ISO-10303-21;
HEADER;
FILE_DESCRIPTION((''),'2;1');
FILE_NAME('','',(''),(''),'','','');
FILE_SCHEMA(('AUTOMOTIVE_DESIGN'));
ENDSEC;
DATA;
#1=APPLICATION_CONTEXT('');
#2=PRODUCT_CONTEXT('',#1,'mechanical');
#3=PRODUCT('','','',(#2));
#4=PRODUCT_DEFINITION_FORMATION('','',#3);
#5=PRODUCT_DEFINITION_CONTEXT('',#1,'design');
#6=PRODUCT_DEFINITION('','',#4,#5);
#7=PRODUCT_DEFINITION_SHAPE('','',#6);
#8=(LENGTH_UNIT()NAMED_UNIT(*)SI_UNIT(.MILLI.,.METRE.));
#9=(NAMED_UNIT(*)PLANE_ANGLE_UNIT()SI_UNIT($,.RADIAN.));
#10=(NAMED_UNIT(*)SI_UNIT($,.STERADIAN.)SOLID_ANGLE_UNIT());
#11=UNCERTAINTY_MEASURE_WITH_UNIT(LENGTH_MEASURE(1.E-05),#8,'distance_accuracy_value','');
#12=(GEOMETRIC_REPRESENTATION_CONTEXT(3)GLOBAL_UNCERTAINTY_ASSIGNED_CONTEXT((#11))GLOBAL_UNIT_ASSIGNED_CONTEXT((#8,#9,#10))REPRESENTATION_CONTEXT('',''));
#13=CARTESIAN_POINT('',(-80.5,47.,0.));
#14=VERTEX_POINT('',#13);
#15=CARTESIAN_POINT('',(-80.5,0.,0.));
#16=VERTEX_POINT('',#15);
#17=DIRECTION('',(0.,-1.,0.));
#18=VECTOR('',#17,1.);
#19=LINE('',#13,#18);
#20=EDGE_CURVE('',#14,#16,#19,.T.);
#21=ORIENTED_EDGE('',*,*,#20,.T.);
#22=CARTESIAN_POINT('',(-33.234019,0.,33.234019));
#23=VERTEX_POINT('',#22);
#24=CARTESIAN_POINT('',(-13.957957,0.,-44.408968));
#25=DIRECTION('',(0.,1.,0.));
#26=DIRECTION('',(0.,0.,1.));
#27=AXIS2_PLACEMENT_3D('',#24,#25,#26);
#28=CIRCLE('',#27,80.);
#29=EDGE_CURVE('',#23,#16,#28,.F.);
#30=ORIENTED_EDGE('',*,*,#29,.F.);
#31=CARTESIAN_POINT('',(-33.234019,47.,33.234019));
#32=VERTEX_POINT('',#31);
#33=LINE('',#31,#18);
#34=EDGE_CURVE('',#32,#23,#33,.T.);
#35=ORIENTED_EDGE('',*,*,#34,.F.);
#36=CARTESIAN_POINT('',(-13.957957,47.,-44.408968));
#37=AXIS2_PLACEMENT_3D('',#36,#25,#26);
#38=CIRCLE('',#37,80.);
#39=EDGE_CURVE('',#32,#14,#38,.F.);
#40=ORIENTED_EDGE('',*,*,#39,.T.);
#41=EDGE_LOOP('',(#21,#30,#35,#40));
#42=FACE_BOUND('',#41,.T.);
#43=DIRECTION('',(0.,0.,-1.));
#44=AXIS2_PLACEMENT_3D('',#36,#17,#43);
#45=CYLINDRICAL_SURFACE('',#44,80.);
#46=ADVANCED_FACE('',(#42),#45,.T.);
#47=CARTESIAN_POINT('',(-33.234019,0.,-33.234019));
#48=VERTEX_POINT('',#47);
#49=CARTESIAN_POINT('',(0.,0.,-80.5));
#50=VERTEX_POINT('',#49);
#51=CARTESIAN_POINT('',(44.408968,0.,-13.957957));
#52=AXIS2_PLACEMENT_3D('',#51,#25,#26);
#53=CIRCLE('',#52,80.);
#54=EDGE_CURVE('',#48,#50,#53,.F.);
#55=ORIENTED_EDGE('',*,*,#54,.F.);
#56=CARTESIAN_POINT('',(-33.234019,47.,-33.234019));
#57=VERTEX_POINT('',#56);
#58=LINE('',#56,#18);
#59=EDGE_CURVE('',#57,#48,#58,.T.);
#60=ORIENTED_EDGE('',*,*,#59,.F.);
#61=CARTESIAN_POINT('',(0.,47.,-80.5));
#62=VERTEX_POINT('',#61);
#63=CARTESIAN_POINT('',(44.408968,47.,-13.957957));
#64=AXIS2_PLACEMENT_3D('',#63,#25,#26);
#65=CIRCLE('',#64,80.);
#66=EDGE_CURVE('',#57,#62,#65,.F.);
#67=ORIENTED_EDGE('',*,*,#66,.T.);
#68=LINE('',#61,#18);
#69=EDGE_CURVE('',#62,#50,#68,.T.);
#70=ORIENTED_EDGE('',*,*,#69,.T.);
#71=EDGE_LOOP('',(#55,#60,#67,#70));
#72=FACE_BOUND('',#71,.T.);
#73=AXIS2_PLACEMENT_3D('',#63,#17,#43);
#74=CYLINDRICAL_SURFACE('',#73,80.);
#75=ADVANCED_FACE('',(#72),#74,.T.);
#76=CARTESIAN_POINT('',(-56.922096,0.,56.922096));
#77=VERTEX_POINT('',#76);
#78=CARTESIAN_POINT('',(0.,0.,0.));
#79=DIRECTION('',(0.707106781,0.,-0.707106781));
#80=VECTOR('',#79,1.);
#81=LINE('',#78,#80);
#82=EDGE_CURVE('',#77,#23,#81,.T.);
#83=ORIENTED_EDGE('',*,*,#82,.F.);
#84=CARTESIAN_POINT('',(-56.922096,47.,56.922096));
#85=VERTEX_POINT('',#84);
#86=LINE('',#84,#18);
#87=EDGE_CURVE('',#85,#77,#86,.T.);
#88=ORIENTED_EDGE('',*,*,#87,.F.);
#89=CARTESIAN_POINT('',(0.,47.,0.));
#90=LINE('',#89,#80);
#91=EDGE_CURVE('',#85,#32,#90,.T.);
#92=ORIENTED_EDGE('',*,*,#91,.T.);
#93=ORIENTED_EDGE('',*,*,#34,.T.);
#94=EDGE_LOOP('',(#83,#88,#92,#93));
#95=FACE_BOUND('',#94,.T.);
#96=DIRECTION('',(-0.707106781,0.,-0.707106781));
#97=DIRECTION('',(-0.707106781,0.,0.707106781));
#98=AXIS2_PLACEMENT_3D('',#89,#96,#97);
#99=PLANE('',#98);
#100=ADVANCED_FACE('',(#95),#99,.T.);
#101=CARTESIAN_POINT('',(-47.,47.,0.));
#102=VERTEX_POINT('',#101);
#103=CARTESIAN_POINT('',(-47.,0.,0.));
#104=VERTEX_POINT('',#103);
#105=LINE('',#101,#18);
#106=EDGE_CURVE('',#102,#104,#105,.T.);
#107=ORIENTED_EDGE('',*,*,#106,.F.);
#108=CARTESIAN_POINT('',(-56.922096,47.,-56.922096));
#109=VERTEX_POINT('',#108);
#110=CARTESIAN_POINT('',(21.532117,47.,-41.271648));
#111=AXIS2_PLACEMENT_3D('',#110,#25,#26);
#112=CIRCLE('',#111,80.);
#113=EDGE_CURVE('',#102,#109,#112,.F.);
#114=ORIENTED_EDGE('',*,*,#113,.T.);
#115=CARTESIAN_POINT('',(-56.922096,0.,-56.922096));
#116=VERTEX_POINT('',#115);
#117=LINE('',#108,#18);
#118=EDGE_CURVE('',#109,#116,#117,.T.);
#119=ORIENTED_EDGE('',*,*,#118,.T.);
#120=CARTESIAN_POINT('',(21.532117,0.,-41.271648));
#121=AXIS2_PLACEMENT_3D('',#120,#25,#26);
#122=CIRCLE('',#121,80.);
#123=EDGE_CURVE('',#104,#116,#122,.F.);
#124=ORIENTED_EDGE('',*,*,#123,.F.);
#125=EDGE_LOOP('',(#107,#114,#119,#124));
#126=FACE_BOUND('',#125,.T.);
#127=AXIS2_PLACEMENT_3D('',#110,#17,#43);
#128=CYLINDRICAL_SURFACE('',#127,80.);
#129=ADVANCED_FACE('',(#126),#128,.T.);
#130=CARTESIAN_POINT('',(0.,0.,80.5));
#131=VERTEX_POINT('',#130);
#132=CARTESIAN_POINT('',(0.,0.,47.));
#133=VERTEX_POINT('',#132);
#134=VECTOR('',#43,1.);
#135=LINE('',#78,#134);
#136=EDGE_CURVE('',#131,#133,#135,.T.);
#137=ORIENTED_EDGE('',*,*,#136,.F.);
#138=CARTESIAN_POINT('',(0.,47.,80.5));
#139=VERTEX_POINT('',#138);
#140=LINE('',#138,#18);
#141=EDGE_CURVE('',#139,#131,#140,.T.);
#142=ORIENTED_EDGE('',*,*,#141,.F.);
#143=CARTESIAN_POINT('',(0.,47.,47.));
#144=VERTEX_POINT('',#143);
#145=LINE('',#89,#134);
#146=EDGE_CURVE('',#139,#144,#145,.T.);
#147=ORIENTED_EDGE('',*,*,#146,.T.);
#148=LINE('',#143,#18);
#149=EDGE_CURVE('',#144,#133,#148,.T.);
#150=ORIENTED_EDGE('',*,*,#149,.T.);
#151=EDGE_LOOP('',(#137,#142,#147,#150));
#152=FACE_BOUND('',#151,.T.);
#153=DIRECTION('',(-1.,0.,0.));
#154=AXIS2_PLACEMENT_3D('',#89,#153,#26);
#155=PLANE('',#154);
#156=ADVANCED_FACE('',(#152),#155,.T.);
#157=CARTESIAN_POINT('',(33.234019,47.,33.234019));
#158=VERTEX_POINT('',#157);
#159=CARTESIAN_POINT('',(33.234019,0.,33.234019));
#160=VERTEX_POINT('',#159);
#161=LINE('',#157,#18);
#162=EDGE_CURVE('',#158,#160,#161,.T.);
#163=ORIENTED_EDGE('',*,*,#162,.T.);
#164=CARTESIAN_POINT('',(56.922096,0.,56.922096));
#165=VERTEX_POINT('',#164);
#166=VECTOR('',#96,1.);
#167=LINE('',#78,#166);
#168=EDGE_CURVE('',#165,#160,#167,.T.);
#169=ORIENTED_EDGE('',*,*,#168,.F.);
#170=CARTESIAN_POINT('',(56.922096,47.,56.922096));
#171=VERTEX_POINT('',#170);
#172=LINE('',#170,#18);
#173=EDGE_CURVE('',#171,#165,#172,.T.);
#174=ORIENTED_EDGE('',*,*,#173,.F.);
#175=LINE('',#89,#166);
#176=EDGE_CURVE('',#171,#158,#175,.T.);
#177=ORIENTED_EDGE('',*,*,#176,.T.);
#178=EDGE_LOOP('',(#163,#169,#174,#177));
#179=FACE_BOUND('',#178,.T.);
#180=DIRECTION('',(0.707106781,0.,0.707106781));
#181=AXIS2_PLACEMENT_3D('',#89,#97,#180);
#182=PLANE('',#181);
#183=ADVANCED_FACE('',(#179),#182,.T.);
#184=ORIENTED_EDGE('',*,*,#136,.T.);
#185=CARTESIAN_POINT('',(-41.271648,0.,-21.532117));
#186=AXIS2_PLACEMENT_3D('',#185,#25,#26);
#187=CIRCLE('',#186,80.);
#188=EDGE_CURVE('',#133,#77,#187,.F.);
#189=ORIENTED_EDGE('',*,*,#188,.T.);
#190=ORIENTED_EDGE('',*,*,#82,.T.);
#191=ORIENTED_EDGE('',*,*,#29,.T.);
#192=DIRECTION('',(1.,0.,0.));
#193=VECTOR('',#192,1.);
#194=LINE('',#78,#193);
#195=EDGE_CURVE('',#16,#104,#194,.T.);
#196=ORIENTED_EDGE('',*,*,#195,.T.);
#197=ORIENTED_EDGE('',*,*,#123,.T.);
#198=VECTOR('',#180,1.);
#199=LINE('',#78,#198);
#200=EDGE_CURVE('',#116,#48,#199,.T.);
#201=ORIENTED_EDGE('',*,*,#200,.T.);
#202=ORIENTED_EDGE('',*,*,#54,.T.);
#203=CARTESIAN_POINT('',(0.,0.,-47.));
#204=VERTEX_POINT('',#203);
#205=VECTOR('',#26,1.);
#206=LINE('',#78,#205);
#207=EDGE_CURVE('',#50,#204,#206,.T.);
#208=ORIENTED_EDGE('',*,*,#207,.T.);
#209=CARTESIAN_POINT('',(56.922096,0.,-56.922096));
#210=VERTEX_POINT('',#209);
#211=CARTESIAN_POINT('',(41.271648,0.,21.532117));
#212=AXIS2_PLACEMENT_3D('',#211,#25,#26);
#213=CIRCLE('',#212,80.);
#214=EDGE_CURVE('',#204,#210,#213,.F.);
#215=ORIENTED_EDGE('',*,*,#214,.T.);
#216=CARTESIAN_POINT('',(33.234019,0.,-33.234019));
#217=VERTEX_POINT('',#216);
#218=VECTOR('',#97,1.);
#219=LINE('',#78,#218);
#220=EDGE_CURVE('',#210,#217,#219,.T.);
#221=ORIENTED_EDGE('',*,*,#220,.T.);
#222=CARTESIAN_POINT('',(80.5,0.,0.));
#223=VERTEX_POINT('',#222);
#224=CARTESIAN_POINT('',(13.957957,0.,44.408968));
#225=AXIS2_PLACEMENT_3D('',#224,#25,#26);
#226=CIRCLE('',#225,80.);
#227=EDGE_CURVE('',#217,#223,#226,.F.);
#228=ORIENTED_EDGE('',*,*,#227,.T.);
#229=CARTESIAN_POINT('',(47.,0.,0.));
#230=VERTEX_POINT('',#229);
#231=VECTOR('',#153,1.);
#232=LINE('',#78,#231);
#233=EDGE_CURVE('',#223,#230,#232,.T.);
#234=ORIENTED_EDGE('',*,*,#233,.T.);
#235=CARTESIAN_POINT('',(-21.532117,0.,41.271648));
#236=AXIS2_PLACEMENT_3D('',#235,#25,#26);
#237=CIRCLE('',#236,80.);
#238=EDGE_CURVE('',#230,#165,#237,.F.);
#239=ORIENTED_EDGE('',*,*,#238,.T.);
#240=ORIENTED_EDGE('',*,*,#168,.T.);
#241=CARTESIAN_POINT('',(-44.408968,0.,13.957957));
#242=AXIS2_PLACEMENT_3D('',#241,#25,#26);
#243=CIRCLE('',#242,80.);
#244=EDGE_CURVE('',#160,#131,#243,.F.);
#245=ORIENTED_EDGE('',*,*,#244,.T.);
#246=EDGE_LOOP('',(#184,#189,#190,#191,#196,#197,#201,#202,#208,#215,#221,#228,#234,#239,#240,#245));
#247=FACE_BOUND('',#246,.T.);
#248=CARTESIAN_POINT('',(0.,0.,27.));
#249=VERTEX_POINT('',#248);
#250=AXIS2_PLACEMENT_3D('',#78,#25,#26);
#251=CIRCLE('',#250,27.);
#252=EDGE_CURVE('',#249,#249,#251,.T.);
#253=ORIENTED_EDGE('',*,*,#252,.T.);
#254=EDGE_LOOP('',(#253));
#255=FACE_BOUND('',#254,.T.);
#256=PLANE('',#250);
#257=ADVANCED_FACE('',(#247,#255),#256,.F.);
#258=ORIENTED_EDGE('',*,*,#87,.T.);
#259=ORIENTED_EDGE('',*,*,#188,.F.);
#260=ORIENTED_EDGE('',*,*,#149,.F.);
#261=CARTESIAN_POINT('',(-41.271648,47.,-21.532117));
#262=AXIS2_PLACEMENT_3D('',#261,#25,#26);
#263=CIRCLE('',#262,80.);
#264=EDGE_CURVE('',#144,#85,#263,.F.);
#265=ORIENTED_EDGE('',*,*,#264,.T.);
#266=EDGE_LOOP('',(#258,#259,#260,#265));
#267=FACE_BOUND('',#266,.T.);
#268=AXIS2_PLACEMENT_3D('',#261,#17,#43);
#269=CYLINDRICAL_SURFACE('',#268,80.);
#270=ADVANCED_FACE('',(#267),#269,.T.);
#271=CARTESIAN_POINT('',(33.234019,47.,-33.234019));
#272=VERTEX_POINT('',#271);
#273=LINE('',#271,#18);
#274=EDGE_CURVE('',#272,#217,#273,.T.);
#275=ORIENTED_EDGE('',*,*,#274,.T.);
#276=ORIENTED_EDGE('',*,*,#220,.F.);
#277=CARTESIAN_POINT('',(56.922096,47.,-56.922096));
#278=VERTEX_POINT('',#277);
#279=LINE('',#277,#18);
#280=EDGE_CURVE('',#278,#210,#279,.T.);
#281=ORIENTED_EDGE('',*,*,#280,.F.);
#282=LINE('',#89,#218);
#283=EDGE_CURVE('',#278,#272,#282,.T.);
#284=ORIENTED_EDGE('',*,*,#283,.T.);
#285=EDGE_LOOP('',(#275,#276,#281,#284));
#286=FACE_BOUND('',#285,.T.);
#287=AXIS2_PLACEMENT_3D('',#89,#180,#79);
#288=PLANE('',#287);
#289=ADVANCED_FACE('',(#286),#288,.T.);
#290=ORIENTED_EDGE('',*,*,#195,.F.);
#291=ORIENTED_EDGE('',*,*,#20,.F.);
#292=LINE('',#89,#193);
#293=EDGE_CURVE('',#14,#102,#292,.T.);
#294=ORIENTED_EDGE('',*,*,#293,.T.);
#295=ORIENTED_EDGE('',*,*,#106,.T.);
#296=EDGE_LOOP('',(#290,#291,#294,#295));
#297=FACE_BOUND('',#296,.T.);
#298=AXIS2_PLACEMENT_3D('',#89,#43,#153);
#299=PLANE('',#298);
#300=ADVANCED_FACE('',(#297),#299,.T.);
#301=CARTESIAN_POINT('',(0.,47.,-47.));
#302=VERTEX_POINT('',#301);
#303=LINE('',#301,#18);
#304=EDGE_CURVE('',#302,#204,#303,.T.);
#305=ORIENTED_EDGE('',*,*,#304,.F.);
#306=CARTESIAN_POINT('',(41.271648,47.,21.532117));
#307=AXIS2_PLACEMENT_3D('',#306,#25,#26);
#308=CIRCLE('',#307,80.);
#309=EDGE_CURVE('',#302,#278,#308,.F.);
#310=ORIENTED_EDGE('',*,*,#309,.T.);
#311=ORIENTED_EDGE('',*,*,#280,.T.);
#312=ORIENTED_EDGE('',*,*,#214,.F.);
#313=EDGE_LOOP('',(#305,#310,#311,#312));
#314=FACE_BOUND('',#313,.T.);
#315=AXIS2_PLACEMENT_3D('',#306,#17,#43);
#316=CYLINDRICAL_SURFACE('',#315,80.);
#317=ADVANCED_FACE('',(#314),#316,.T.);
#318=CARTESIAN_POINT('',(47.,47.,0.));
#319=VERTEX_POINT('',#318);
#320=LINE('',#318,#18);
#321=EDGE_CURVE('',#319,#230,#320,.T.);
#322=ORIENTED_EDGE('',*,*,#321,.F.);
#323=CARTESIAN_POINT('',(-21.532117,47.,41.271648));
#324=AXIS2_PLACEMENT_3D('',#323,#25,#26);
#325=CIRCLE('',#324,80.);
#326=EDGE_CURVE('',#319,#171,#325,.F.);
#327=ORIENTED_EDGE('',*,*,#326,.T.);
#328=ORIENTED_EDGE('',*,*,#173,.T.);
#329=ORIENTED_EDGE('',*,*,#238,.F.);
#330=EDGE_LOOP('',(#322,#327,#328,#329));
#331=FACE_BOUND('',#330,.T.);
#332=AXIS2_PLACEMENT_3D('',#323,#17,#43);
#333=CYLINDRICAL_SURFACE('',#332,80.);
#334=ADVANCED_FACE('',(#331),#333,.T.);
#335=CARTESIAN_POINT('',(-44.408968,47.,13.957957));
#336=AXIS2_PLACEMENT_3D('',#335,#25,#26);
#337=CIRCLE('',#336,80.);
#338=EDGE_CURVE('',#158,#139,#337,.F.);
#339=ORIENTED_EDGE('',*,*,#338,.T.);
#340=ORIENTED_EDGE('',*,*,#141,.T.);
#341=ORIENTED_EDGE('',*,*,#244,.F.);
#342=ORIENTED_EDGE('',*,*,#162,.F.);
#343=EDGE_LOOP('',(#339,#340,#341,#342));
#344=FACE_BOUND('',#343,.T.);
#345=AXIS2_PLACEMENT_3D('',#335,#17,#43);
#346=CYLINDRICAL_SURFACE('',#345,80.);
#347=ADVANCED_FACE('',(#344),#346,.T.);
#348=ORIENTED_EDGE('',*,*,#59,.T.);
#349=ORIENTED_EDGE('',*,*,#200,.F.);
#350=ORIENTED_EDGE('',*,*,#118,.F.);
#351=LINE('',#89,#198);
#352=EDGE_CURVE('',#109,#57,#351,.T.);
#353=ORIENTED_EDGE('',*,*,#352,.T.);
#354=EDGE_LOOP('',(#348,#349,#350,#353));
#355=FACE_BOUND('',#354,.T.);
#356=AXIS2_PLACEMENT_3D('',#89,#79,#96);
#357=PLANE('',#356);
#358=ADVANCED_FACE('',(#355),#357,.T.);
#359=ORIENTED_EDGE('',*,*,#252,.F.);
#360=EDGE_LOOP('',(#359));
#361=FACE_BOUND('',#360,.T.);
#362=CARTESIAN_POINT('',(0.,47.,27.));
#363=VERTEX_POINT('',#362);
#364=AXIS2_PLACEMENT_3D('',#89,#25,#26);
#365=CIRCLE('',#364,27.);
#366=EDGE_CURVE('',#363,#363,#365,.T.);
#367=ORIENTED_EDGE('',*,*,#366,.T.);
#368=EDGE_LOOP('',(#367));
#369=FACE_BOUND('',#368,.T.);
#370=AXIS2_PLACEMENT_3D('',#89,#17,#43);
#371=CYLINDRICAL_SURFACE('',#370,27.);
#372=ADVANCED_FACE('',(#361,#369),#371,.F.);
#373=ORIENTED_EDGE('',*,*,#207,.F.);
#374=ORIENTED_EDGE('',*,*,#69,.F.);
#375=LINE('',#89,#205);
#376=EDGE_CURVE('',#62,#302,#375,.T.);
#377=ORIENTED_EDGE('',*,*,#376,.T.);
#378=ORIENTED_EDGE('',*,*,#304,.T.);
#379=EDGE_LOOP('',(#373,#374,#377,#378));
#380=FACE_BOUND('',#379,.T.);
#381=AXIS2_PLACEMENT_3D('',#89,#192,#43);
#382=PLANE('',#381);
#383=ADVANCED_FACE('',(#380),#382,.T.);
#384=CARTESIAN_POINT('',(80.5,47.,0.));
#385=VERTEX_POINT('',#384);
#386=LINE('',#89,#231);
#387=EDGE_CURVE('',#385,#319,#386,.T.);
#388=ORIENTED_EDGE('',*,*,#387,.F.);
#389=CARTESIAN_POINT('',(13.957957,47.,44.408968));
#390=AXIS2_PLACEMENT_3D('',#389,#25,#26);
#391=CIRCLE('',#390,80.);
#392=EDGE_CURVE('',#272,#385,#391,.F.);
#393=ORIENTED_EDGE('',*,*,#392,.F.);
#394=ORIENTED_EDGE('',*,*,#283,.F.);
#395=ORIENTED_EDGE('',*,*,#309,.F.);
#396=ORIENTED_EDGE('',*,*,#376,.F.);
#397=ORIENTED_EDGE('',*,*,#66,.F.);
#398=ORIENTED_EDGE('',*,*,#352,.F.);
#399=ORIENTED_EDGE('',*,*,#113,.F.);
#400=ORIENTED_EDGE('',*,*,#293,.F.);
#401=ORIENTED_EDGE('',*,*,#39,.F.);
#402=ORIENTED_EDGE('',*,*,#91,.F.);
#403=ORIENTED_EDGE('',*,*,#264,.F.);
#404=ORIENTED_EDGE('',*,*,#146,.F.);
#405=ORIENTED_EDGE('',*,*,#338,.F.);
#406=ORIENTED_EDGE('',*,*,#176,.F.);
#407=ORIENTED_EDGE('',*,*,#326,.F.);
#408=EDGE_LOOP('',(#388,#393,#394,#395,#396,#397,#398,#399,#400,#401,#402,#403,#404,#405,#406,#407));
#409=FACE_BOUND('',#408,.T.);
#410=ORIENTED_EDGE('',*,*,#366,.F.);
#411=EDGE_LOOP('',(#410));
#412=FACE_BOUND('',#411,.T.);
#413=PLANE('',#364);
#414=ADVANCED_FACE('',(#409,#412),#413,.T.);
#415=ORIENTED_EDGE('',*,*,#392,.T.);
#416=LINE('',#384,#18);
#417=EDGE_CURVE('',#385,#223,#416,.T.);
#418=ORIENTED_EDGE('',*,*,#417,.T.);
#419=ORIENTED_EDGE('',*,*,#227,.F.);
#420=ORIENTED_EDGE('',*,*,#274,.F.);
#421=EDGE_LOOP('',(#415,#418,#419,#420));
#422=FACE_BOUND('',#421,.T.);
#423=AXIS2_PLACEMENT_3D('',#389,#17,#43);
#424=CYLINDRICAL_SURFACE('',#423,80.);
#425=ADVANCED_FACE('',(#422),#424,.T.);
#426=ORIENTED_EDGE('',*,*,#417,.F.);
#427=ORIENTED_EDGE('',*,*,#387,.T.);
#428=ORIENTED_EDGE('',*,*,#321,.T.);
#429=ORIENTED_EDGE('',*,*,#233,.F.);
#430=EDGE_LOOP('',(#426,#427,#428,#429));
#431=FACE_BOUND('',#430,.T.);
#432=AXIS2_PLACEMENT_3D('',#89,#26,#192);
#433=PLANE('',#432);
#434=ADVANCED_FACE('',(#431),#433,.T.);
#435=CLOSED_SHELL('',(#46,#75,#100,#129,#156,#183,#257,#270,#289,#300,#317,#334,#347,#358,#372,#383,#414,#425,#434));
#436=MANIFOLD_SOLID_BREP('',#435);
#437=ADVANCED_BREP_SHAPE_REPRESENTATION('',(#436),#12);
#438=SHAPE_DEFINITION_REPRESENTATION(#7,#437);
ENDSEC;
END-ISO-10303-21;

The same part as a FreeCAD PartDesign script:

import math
import FreeCAD as App
import Part
import Sketcher

V = App.Vector
Q = App.Units.Quantity

doc = App.newDocument("Part")
params = doc.addObject("Spreadsheet::Sheet", "Params")
for row, (alias, value) in enumerate([
    ("sketch1_diameter", "54 mm"),
    ("sketch1_radius", "80 mm"),
    ("sketch1_width", "33.5 mm"),
    ("sketch1_length", "33.5 mm"),
    ("pad1_length", "47 mm"),
], start=1):
    params.set(f"A{row}", alias)
    params.set(f"B{row}", "=" + value)
    params.setAlias(f"B{row}", alias)

body = doc.addObject("PartDesign::Body", "Body")

# Sketch on XZ plane
sketch1 = doc.addObject("Sketcher::SketchObject", "Sketch")
body.addObject(sketch1)
sketch1.AttachmentSupport = (doc.XZ_Plane, [""])
sketch1.MapMode = "FlatFace"
sketch1.addGeometry([
    Part.LineSegment(V(33.234019, -33.234019, 0), V(56.922096, -56.922096, 0)),  # 0
    Part.ArcOfCircle(Part.Circle(V(41.271648, 21.532117, 0), V(0, 0, 1), 80), math.radians(-121.057337), math.radians(-78.718437)),  # 1
    Part.LineSegment(V(0, -47, 0), V(0, -80.5, 0)),  # 2
    Part.ArcOfCircle(Part.Circle(V(44.408968, -13.957957, 0), V(0, 0, 1), 80), math.radians(-166.057337), math.radians(-123.718437)),  # 3
    Part.LineSegment(V(-33.234019, -33.234019, 0), V(-56.922096, -56.922096, 0)),  # 4
    Part.ArcOfCircle(Part.Circle(V(21.532117, -41.271648, 0), V(0, 0, 1), 80), math.radians(148.942663), math.radians(191.281563)),  # 5
    Part.LineSegment(V(-47, 0, 0), V(-80.5, 0, 0)),  # 6
    Part.ArcOfCircle(Part.Circle(V(-13.957957, -44.408968, 0), V(0, 0, 1), 80), math.radians(103.942663), math.radians(146.281563)),  # 7
    Part.LineSegment(V(-33.234019, 33.234019, 0), V(-56.922096, 56.922096, 0)),  # 8
    Part.ArcOfCircle(Part.Circle(V(-41.271648, -21.532117, 0), V(0, 0, 1), 80), math.radians(58.942663), math.radians(101.281563)),  # 9
    Part.LineSegment(V(0, 47, 0), V(0, 80.5, 0)),  # 10
    Part.ArcOfCircle(Part.Circle(V(-44.408968, 13.957957, 0), V(0, 0, 1), 80), math.radians(13.942663), math.radians(56.281563)),  # 11
    Part.LineSegment(V(33.234019, 33.234019, 0), V(56.922096, 56.922096, 0)),  # 12
    Part.ArcOfCircle(Part.Circle(V(-21.532117, 41.271648, 0), V(0, 0, 1), 80), math.radians(-31.057337), math.radians(11.281563)),  # 13
    Part.LineSegment(V(47, 0, 0), V(80.5, 0, 0)),  # 14
    Part.ArcOfCircle(Part.Circle(V(13.957957, 44.408968, 0), V(0, 0, 1), 80), math.radians(-76.057337), math.radians(-33.718437)),  # 15
    Part.Circle(V(0, 0, 0), V(0, 0, 1), 27),  # 16
], False)
sketch1.addConstraint([
    Sketcher.Constraint("Coincident", 0, 2, 1, 2),
    Sketcher.Constraint("Coincident", 1, 1, 2, 1),
    Sketcher.Constraint("Coincident", 2, 2, 3, 2),
    Sketcher.Constraint("Coincident", 3, 1, 4, 1),
    Sketcher.Constraint("Coincident", 4, 2, 5, 2),
    Sketcher.Constraint("Coincident", 5, 1, 6, 1),
    Sketcher.Constraint("Coincident", 6, 2, 7, 2),
    Sketcher.Constraint("Coincident", 7, 1, 8, 1),
    Sketcher.Constraint("Coincident", 8, 2, 9, 2),
    Sketcher.Constraint("Coincident", 9, 1, 10, 1),
    Sketcher.Constraint("Coincident", 10, 2, 11, 2),
    Sketcher.Constraint("Coincident", 11, 1, 12, 1),
    Sketcher.Constraint("Coincident", 12, 2, 13, 2),
    Sketcher.Constraint("Coincident", 13, 1, 14, 1),
    Sketcher.Constraint("Coincident", 14, 2, 15, 2),
    Sketcher.Constraint("Coincident", 15, 1, 0, 1),
    Sketcher.Constraint("Vertical", 2),
    Sketcher.Constraint("Horizontal", 6),
    Sketcher.Constraint("Vertical", 10),
    Sketcher.Constraint("Horizontal", 14),
    Sketcher.Constraint("Coincident", 16, 3, -1, 1),
    Sketcher.Constraint("Equal", 1, 3),
    Sketcher.Constraint("Equal", 3, 5),
    Sketcher.Constraint("Equal", 5, 7),
    Sketcher.Constraint("Equal", 7, 9),
    Sketcher.Constraint("Equal", 9, 11),
    Sketcher.Constraint("Equal", 11, 13),
    Sketcher.Constraint("Equal", 13, 15),
    Sketcher.Constraint("Symmetric", 1, 3, 9, 3, -1, 1),
    Sketcher.Constraint("Symmetric", 3, 3, 11, 3, -1, 1),
    Sketcher.Constraint("Symmetric", 5, 3, 13, 3, -1, 1),
    Sketcher.Constraint("Symmetric", 7, 3, 15, 3, -1, 1),
    Sketcher.Constraint("Symmetric", 0, 2, 4, 2, -2),
    Sketcher.Constraint("Symmetric", 7, 1, 11, 1, -2),
    Sketcher.Constraint("Symmetric", 8, 2, 12, 2, -2),
    Sketcher.Constraint("Symmetric", 5, 1, 13, 1, -2),
    Sketcher.Constraint("Symmetric", 3, 1, 15, 1, -2),
    Sketcher.Constraint("Symmetric", 1, 1, 9, 1, -1),
    Sketcher.Constraint("Perpendicular", 0, 4),
    Sketcher.Constraint("Equal", 14, 2),
    Sketcher.Constraint("Diameter", 16, Q("54 mm")),
    Sketcher.Constraint("Radius", 1, Q("80 mm")),
    Sketcher.Constraint("DistanceX", 6, 2, 6, 1, Q("33.5 mm")),
    Sketcher.Constraint("DistanceY", 1, 1, -1, 1, Q("47 mm")),
    Sketcher.Constraint("DistanceX", 5, 1, -1, 1, Q("47 mm")),
    Sketcher.Constraint("Distance", 0, Q("33.5 mm")),
    Sketcher.Constraint("DistanceY", 3, 1, 9, 3, Q("11.701902 mm")),
    Sketcher.Constraint("DistanceX", 7, 1, 13, 3, Q("11.701902 mm")),
])
sketch1.setExpression("Constraints[40]", "Params.sketch1_diameter")
sketch1.setExpression("Constraints[41]", "Params.sketch1_radius")
sketch1.setExpression("Constraints[42]", "Params.sketch1_width")
sketch1.setExpression("Constraints[45]", "Params.sketch1_length")
pad1 = doc.addObject("PartDesign::Pad", "Pad")
body.addObject(pad1)
pad1.Profile = sketch1
pad1.setExpression("Length", "Params.pad1_length")
pad1.Reversed = True

doc.recompute()
